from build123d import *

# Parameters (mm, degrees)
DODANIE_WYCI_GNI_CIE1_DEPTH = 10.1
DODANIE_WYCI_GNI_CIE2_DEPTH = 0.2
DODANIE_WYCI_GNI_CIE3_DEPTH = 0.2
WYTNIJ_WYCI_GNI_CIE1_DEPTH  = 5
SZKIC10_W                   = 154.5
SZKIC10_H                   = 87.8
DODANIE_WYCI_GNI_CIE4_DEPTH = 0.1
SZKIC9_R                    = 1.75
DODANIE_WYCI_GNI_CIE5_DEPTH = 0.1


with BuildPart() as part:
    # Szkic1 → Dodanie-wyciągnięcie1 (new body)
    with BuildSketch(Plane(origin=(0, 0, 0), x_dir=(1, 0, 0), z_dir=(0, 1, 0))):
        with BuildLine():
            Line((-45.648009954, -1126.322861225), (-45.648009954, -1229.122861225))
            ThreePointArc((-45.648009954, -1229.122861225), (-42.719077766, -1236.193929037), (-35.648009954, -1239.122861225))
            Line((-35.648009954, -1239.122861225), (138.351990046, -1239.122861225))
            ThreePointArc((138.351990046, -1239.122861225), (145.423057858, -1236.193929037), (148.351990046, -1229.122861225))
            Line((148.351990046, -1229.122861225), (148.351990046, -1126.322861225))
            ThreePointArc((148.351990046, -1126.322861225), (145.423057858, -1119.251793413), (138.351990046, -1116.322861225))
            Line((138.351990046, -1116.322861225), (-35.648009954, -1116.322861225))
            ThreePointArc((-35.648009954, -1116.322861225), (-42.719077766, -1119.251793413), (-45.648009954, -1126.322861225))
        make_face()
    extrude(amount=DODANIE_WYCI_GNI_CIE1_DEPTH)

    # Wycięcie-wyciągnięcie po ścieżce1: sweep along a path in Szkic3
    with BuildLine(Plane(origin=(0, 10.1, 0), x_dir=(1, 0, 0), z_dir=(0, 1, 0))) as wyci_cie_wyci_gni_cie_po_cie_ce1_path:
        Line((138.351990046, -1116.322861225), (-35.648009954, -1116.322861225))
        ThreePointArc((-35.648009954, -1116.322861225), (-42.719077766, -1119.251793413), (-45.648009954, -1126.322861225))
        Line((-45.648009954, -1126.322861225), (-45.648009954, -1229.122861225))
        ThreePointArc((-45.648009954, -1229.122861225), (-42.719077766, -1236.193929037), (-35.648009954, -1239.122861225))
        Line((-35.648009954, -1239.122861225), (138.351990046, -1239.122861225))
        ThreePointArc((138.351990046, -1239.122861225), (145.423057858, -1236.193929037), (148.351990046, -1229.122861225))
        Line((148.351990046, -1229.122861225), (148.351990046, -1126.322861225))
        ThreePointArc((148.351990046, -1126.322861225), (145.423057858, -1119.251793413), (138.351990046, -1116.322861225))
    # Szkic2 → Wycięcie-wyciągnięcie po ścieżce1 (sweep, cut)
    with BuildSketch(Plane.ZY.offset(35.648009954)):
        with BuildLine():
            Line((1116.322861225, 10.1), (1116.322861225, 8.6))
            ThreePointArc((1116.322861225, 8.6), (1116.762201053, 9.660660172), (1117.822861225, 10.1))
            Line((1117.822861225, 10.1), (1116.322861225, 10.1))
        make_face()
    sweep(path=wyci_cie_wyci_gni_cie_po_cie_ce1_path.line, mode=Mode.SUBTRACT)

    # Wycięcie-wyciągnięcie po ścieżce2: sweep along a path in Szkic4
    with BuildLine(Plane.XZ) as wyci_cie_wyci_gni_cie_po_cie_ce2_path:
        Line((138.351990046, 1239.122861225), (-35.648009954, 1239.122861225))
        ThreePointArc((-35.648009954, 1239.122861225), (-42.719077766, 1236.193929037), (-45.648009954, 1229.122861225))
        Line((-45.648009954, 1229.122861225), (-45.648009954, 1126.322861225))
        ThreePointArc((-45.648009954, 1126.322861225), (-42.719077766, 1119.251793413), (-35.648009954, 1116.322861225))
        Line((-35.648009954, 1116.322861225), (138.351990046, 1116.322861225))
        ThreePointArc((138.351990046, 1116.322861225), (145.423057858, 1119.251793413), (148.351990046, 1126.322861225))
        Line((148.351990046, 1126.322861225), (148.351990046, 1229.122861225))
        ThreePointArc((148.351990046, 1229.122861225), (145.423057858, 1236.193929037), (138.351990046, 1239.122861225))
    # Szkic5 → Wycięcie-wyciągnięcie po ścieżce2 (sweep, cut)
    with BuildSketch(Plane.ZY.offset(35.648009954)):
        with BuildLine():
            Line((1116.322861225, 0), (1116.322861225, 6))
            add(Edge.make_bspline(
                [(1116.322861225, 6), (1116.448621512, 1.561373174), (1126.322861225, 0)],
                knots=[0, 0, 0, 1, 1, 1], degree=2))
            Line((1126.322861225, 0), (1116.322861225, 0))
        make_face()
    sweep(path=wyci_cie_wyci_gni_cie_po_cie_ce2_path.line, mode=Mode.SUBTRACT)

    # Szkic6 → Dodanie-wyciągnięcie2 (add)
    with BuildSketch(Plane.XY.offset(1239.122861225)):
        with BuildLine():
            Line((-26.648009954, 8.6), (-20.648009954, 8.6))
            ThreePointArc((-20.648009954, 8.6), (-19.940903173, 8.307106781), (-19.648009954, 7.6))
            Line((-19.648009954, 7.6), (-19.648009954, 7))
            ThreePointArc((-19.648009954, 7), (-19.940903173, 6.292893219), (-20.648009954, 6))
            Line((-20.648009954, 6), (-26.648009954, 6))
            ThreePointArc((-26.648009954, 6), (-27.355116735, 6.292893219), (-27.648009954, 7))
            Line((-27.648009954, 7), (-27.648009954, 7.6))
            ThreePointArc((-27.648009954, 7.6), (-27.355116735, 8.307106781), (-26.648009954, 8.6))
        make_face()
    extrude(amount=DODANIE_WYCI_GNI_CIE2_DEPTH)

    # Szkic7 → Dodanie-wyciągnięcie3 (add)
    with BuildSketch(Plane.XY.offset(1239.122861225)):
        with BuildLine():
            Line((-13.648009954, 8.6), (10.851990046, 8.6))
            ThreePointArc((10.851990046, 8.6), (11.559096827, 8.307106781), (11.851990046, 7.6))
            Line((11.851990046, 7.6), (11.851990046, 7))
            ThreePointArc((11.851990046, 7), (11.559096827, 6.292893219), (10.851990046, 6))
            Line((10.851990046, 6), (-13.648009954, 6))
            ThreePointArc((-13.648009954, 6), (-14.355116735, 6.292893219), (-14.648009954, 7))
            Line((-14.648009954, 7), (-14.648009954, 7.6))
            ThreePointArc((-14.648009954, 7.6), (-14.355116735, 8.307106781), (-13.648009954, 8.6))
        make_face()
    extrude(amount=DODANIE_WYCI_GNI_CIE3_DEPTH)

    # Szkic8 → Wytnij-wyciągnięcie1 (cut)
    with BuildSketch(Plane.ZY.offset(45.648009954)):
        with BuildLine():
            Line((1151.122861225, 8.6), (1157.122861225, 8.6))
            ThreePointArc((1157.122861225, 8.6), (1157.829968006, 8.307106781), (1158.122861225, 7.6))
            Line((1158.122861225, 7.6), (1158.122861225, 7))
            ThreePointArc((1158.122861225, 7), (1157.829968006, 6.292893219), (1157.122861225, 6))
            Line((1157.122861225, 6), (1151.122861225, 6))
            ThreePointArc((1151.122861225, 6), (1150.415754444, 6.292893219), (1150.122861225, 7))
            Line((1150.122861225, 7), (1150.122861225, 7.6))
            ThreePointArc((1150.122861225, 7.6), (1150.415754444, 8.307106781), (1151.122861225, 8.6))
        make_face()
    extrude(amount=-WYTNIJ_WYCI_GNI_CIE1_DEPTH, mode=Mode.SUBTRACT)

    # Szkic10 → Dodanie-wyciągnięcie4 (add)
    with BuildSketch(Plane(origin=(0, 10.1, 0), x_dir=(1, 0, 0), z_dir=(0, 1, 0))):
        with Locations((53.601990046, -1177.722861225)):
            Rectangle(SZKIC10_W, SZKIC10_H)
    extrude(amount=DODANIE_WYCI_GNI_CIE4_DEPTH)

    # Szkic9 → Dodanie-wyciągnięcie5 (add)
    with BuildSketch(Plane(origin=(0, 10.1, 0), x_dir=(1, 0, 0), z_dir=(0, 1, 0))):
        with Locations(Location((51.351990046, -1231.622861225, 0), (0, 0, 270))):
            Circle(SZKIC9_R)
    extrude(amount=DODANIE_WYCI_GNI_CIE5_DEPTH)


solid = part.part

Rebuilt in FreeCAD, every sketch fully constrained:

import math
import FreeCAD as App
import Part
import Sketcher
Q = App.Units.Quantity


def add_polygon(sketch, points):
    """Adds a closed chain of lines whose ends are joined by coincident constraints."""
    first, n = sketch.GeometryCount, len(points)
    for a, b in zip(points, points[1:] + points[:1]):
        sketch.addGeometry(Part.LineSegment(App.Vector(*a, 0), App.Vector(*b, 0)), False)
    for i in range(n):
        sketch.addConstraint(Sketcher.Constraint("Coincident", first + i, 2, first + (i + 1) % n, 1))

doc = App.newDocument("Part")
body = doc.addObject("PartDesign::Body", "Body")

sketch1 = body.newObject("Sketcher::SketchObject", "Sketch")
sketch1.AttachmentSupport = (doc.getObject("XZ_Plane"), [""])
sketch1.MapMode = "FlatFace"
sketch1.addGeometry([
    Part.LineSegment(App.Vector(-45.64801, 1126.322861, 0), App.Vector(-45.64801, 1229.122861, 0)),
    Part.ArcOfCircle(Part.Circle(App.Vector(-35.64801, 1229.122861, 0), App.Vector(0, 0, 1), 10), math.radians(90), math.radians(180)),
    Part.LineSegment(App.Vector(-35.64801, 1239.122861, 0), App.Vector(138.35199, 1239.122861, 0)),
    Part.ArcOfCircle(Part.Circle(App.Vector(138.35199, 1229.122861, 0), App.Vector(0, 0, 1), 10), math.radians(0), math.radians(90)),
    Part.LineSegment(App.Vector(148.35199, 1229.122861, 0), App.Vector(148.35199, 1126.322861, 0)),
    Part.ArcOfCircle(Part.Circle(App.Vector(138.35199, 1126.322861, 0), App.Vector(0, 0, 1), 10), math.radians(-90), math.radians(0)),
    Part.LineSegment(App.Vector(138.35199, 1116.322861, 0), App.Vector(-35.64801, 1116.322861, 0)),
    Part.ArcOfCircle(Part.Circle(App.Vector(-35.64801, 1126.322861, 0), App.Vector(0, 0, 1), 10), math.radians(180), math.radians(270)),
], False)
sketch1.addConstraint([
    Sketcher.Constraint("Tangent", 0, 2, 1, 2),
    Sketcher.Constraint("Tangent", 1, 1, 2, 1),
    Sketcher.Constraint("Tangent", 2, 2, 3, 2),
    Sketcher.Constraint("Tangent", 3, 1, 4, 1),
    Sketcher.Constraint("Tangent", 4, 2, 5, 2),
    Sketcher.Constraint("Tangent", 5, 1, 6, 1),
    Sketcher.Constraint("Tangent", 6, 2, 7, 2),
    Sketcher.Constraint("Tangent", 7, 1, 0, 1),
    Sketcher.Constraint("Vertical", 0),
    Sketcher.Constraint("Horizontal", 2),
    Sketcher.Constraint("Vertical", 4),
    Sketcher.Constraint("Horizontal", 6),
    Sketcher.Constraint("Equal", 1, 3),
    Sketcher.Constraint("Equal", 3, 5),
    Sketcher.Constraint("Equal", 5, 7),
    Sketcher.Constraint("Radius", 1, Q("10 mm")),
    Sketcher.Constraint("DistanceX", 2, 1, 2, 2, Q("174 mm")),
    Sketcher.Constraint("DistanceY", 0, 1, 0, 2, Q("102.8 mm")),
    Sketcher.Constraint("DistanceX", 1, 3, -1, 1, Q("35.64801 mm")),
    Sketcher.Constraint("DistanceY", -1, 1, 1, 3, Q("1229.122861 mm")),
])
pad1 = body.newObject("PartDesign::Pad", "Pad")
pad1.Profile = sketch1
pad1.Length = 10.1
pad1.Reversed = True

sketch2 = body.newObject("Sketcher::SketchObject", "Sketch001")
sketch2.AttachmentSupport = (doc.getObject("YZ_Plane"), [""])
sketch2.MapMode = "FlatFace"
sketch2.AttachmentOffset = App.Placement(App.Vector(0, 0, -35.64801), App.Rotation())
sketch2.addGeometry([
    Part.LineSegment(App.Vector(10.1, 1116.322861, 0), App.Vector(8.6, 1116.322861, 0)),
    Part.ArcOfCircle(Part.Circle(App.Vector(8.6, 1117.822861, 0), App.Vector(0, 0, 1), 1.5), math.radians(-90), math.radians(0)),
    Part.LineSegment(App.Vector(10.1, 1117.822861, 0), App.Vector(10.1, 1116.322861, 0)),
], False)
sketch2.addConstraint([
    Sketcher.Constraint("Tangent", 0, 2, 1, 1),
    Sketcher.Constraint("Tangent", 1, 2, 2, 1),
    Sketcher.Constraint("Coincident", 2, 2, 0, 1),
    Sketcher.Constraint("Horizontal", 0),
    Sketcher.Constraint("Vertical", 2),
    Sketcher.Constraint("Radius", 1, Q("1.5 mm")),
    Sketcher.Constraint("DistanceX", -1, 1, 1, 3, Q("8.6 mm")),
    Sketcher.Constraint("DistanceY", -1, 1, 1, 3, Q("1117.822861 mm")),
])

sketch3 = body.newObject("Sketcher::SketchObject", "Sketch002")
sketch3.AttachmentSupport = (doc.getObject("XZ_Plane"), [""])
sketch3.MapMode = "FlatFace"
sketch3.AttachmentOffset = App.Placement(App.Vector(0, 0, -10.1), App.Rotation())
sketch3.addGeometry([
    Part.LineSegment(App.Vector(138.35199, 1116.322861, 0), App.Vector(-35.64801, 1116.322861, 0)),
    Part.ArcOfCircle(Part.Circle(App.Vector(-35.64801, 1126.322861, 0), App.Vector(0, 0, 1), 10), math.radians(180), math.radians(270)),
    Part.LineSegment(App.Vector(-45.64801, 1126.322861, 0), App.Vector(-45.64801, 1229.122861, 0)),
    Part.ArcOfCircle(Part.Circle(App.Vector(-35.64801, 1229.122861, 0), App.Vector(0, 0, 1), 10), math.radians(90), math.radians(180)),
    Part.LineSegment(App.Vector(-35.64801, 1239.122861, 0), App.Vector(138.35199, 1239.122861, 0)),
    Part.ArcOfCircle(Part.Circle(App.Vector(138.35199, 1229.122861, 0), App.Vector(0, 0, 1), 10), math.radians(0), math.radians(90)),
    Part.LineSegment(App.Vector(148.35199, 1229.122861, 0), App.Vector(148.35199, 1126.322861, 0)),
    Part.ArcOfCircle(Part.Circle(App.Vector(138.35199, 1126.322861, 0), App.Vector(0, 0, 1), 10), math.radians(-90), math.radians(0)),
], False)
sketch3.addConstraint([
    Sketcher.Constraint("Tangent", 0, 2, 1, 2),
    Sketcher.Constraint("Tangent", 1, 1, 2, 1),
    Sketcher.Constraint("Tangent", 2, 2, 3, 2),
    Sketcher.Constraint("Tangent", 3, 1, 4, 1),
    Sketcher.Constraint("Tangent", 4, 2, 5, 2),
    Sketcher.Constraint("Tangent", 5, 1, 6, 1),
    Sketcher.Constraint("Tangent", 6, 2, 7, 2),
    Sketcher.Constraint("Tangent", 7, 1, 0, 1),
    Sketcher.Constraint("Horizontal", 0),
    Sketcher.Constraint("Vertical", 2),
    Sketcher.Constraint("Horizontal", 4),
    Sketcher.Constraint("Vertical", 6),
    Sketcher.Constraint("Equal", 1, 3),
    Sketcher.Constraint("Equal", 3, 5),
    Sketcher.Constraint("Equal", 5, 7),
    Sketcher.Constraint("Radius", 1, Q("10 mm")),
    Sketcher.Constraint("DistanceX", 0, 2, 0, 1, Q("174 mm")),
    Sketcher.Constraint("DistanceY", 2, 1, 2, 2, Q("102.8 mm")),
    Sketcher.Constraint("DistanceX", 1, 3, -1, 1, Q("35.64801 mm")),
    Sketcher.Constraint("DistanceY", -1, 1, 1, 3, Q("1126.322861 mm")),
])
doc.recompute()

subtractivepipe = body.newObject("PartDesign::SubtractivePipe", "SubtractivePipe")
subtractivepipe.Profile = sketch2
subtractivepipe.Spine = (sketch3, ["Edge1", "Edge2", "Edge3", "Edge4", "Edge5", "Edge6", "Edge7", "Edge8"])

sketch4 = body.newObject("Sketcher::SketchObject", "Sketch003")
sketch4.AttachmentSupport = (doc.getObject("YZ_Plane"), [""])
sketch4.MapMode = "FlatFace"
sketch4.AttachmentOffset = App.Placement(App.Vector(0, 0, -35.64801), App.Rotation())
sketch4.addGeometry([
    Part.LineSegment(App.Vector(6, 1116.322861, 0), App.Vector(0, 1116.322861, 0)),
    Part.LineSegment(App.Vector(0, 1116.322861, 0), App.Vector(0, 1126.322861, 0)),
    Part.BSplineCurve([App.Vector(6, 1116.322861, 0), App.Vector(1.561373, 1116.448622, 0), App.Vector(0, 1126.322861, 0)], [3, 3], [0, 1], False, 2, [1, 1, 1], False),
], False)
sketch4.addConstraint([
    Sketcher.Constraint("Block", 2),
    Sketcher.Constraint("Coincident", 0, 2, 1, 1),
    Sketcher.Constraint("Coincident", 1, 2, 2, 2),
    Sketcher.Constraint("Coincident", 2, 1, 0, 1),
    Sketcher.Constraint("Horizontal", 0),
    Sketcher.Constraint("Vertical", 1),
])

sketch5 = body.newObject("Sketcher::SketchObject", "Sketch004")
sketch5.AttachmentSupport = (doc.getObject("XZ_Plane"), [""])
sketch5.MapMode = "FlatFace"
sketch5.addGeometry([
    Part.LineSegment(App.Vector(138.35199, 1239.122861, 0), App.Vector(-35.64801, 1239.122861, 0)),
    Part.ArcOfCircle(Part.Circle(App.Vector(-35.64801, 1229.122861, 0), App.Vector(0, 0, 1), 10), math.radians(90), math.radians(180)),
    Part.LineSegment(App.Vector(-45.64801, 1229.122861, 0), App.Vector(-45.64801, 1126.322861, 0)),
    Part.ArcOfCircle(Part.Circle(App.Vector(-35.64801, 1126.322861, 0), App.Vector(0, 0, 1), 10), math.radians(180), math.radians(270)),
    Part.LineSegment(App.Vector(-35.64801, 1116.322861, 0), App.Vector(138.35199, 1116.322861, 0)),
    Part.ArcOfCircle(Part.Circle(App.Vector(138.35199, 1126.322861, 0), App.Vector(0, 0, 1), 10), math.radians(-90), math.radians(0)),
    Part.LineSegment(App.Vector(148.35199, 1126.322861, 0), App.Vector(148.35199, 1229.122861, 0)),
    Part.ArcOfCircle(Part.Circle(App.Vector(138.35199, 1229.122861, 0), App.Vector(0, 0, 1), 10), math.radians(0), math.radians(90)),
], False)
sketch5.addConstraint([
    Sketcher.Constraint("Tangent", 0, 2, 1, 1),
    Sketcher.Constraint("Tangent", 1, 2, 2, 1),
    Sketcher.Constraint("Tangent", 2, 2, 3, 1),
    Sketcher.Constraint("Tangent", 3, 2, 4, 1),
    Sketcher.Constraint("Tangent", 4, 2, 5, 1),
    Sketcher.Constraint("Tangent", 5, 2, 6, 1),
    Sketcher.Constraint("Tangent", 6, 2, 7, 1),
    Sketcher.Constraint("Tangent", 7, 2, 0, 1),
    Sketcher.Constraint("Horizontal", 0),
    Sketcher.Constraint("Vertical", 2),
    Sketcher.Constraint("Horizontal", 4),
    Sketcher.Constraint("Vertical", 6),
    Sketcher.Constraint("Equal", 1, 3),
    Sketcher.Constraint("Equal", 3, 5),
    Sketcher.Constraint("Equal", 5, 7),
    Sketcher.Constraint("Radius", 1, Q("10 mm")),
    Sketcher.Constraint("DistanceX", 0, 2, 0, 1, Q("174 mm")),
    Sketcher.Constraint("DistanceY", 2, 2, 2, 1, Q("102.8 mm")),
    Sketcher.Constraint("DistanceX", 1, 3, -1, 1, Q("35.64801 mm")),
    Sketcher.Constraint("DistanceY", -1, 1, 1, 3, Q("1229.122861 mm")),
])
doc.recompute()

subtractivepipe2 = body.newObject("PartDesign::SubtractivePipe", "SubtractivePipe001")
subtractivepipe2.Profile = sketch4
subtractivepipe2.Spine = (sketch5, ["Edge1", "Edge2", "Edge3", "Edge4", "Edge5", "Edge6", "Edge7", "Edge8"])

sketch6 = body.newObject("Sketcher::SketchObject", "Sketch005")
sketch6.AttachmentSupport = (doc.getObject("XY_Plane"), [""])
sketch6.MapMode = "FlatFace"
sketch6.AttachmentOffset = App.Placement(App.Vector(0, 0, 1239.122861), App.Rotation())
sketch6.addGeometry([
    Part.LineSegment(App.Vector(-20.64801, 8.6, 0), App.Vector(-26.64801, 8.6, 0)),
    Part.ArcOfCircle(Part.Circle(App.Vector(-26.64801, 7.6, 0), App.Vector(0, 0, 1), 1), math.radians(90), math.radians(180)),
    Part.LineSegment(App.Vector(-27.64801, 7.6, 0), App.Vector(-27.64801, 7, 0)),
    Part.ArcOfCircle(Part.Circle(App.Vector(-26.64801, 7, 0), App.Vector(0, 0, 1), 1), math.radians(-180), math.radians(-90)),
    Part.LineSegment(App.Vector(-26.64801, 6, 0), App.Vector(-20.64801, 6, 0)),
    Part.ArcOfCircle(Part.Circle(App.Vector(-20.64801, 7, 0), App.Vector(0, 0, 1), 1), math.radians(-90), math.radians(0)),
    Part.LineSegment(App.Vector(-19.64801, 7, 0), App.Vector(-19.64801, 7.6, 0)),
    Part.ArcOfCircle(Part.Circle(App.Vector(-20.64801, 7.6, 0), App.Vector(0, 0, 1), 1), math.radians(0), math.radians(90)),
], False)
sketch6.addConstraint([
    Sketcher.Constraint("Tangent", 0, 2, 1, 1),
    Sketcher.Constraint("Tangent", 1, 2, 2, 1),
    Sketcher.Constraint("Tangent", 2, 2, 3, 1),
    Sketcher.Constraint("Tangent", 3, 2, 4, 1),
    Sketcher.Constraint("Tangent", 4, 2, 5, 1),
    Sketcher.Constraint("Tangent", 5, 2, 6, 1),
    Sketcher.Constraint("Tangent", 6, 2, 7, 1),
    Sketcher.Constraint("Tangent", 7, 2, 0, 1),
    Sketcher.Constraint("Horizontal", 0),
    Sketcher.Constraint("Vertical", 2),
    Sketcher.Constraint("Horizontal", 4),
    Sketcher.Constraint("Vertical", 6),
    Sketcher.Constraint("Equal", 1, 3),
    Sketcher.Constraint("Equal", 3, 5),
    Sketcher.Constraint("Equal", 5, 7),
    Sketcher.Constraint("Radius", 1, Q("1 mm")),
    Sketcher.Constraint("DistanceX", 0, 2, 0, 1, Q("6 mm")),
    Sketcher.Constraint("DistanceY", 2, 2, 2, 1, Q("0.6 mm")),
    Sketcher.Constraint("DistanceY", -1, 1, 3, 3, Q("7 mm")),
    Sketcher.Constraint("DistanceX", 1, 3, -1, 1, Q("26.64801 mm")),
])
pad2 = body.newObject("PartDesign::Pad", "Pad001")
pad2.Profile = sketch6
pad2.Length = 0.2

sketch7 = body.newObject("Sketcher::SketchObject", "Sketch006")
sketch7.AttachmentSupport = (doc.getObject("XY_Plane"), [""])
sketch7.MapMode = "FlatFace"
sketch7.AttachmentOffset = App.Placement(App.Vector(0, 0, 1239.122861), App.Rotation())
sketch7.addGeometry([
    Part.LineSegment(App.Vector(10.85199, 8.6, 0), App.Vector(-13.64801, 8.6, 0)),
    Part.ArcOfCircle(Part.Circle(App.Vector(-13.64801, 7.6, 0), App.Vector(0, 0, 1), 1), math.radians(90), math.radians(180)),
    Part.LineSegment(App.Vector(-14.64801, 7.6, 0), App.Vector(-14.64801, 7, 0)),
    Part.ArcOfCircle(Part.Circle(App.Vector(-13.64801, 7, 0), App.Vector(0, 0, 1), 1), math.radians(-180), math.radians(-90)),
    Part.LineSegment(App.Vector(-13.64801, 6, 0), App.Vector(10.85199, 6, 0)),
    Part.ArcOfCircle(Part.Circle(App.Vector(10.85199, 7, 0), App.Vector(0, 0, 1), 1), math.radians(-90), math.radians(0)),
    Part.LineSegment(App.Vector(11.85199, 7, 0), App.Vector(11.85199, 7.6, 0)),
    Part.ArcOfCircle(Part.Circle(App.Vector(10.85199, 7.6, 0), App.Vector(0, 0, 1), 1), math.radians(0), math.radians(90)),
], False)
sketch7.addConstraint([
    Sketcher.Constraint("Tangent", 0, 2, 1, 1),
    Sketcher.Constraint("Tangent", 1, 2, 2, 1),
    Sketcher.Constraint("Tangent", 2, 2, 3, 1),
    Sketcher.Constraint("Tangent", 3, 2, 4, 1),
    Sketcher.Constraint("Tangent", 4, 2, 5, 1),
    Sketcher.Constraint("Tangent", 5, 2, 6, 1),
    Sketcher.Constraint("Tangent", 6, 2, 7, 1),
    Sketcher.Constraint("Tangent", 7, 2, 0, 1),
    Sketcher.Constraint("Horizontal", 0),
    Sketcher.Constraint("Vertical", 2),
    Sketcher.Constraint("Horizontal", 4),
    Sketcher.Constraint("Vertical", 6),
    Sketcher.Constraint("Equal", 1, 3),
    Sketcher.Constraint("Equal", 3, 5),
    Sketcher.Constraint("Equal", 5, 7),
    Sketcher.Constraint("Radius", 1, Q("1 mm")),
    Sketcher.Constraint("DistanceX", 0, 2, 0, 1, Q("24.5 mm")),
    Sketcher.Constraint("DistanceY", 2, 2, 2, 1, Q("0.6 mm")),
    Sketcher.Constraint("DistanceY", -1, 1, 3, 3, Q("7 mm")),
    Sketcher.Constraint("DistanceX", 1, 3, -1, 1, Q("13.64801 mm")),
])
pad3 = body.newObject("PartDesign::Pad", "Pad002")
pad3.Profile = sketch7
pad3.Length = 0.2

sketch8 = body.newObject("Sketcher::SketchObject", "Sketch007")
sketch8.AttachmentSupport = (doc.getObject("YZ_Plane"), [""])
sketch8.MapMode = "FlatFace"
sketch8.AttachmentOffset = App.Placement(App.Vector(0, 0, -45.64801), App.Rotation())
sketch8.addGeometry([
    Part.LineSegment(App.Vector(8.6, 1157.122861, 0), App.Vector(8.6, 1151.122861, 0)),
    Part.ArcOfCircle(Part.Circle(App.Vector(7.6, 1151.122861, 0), App.Vector(0, 0, 1), 1), math.radians(-90), math.radians(0)),
    Part.LineSegment(App.Vector(7.6, 1150.122861, 0), App.Vector(7, 1150.122861, 0)),
    Part.ArcOfCircle(Part.Circle(App.Vector(7, 1151.122861, 0), App.Vector(0, 0, 1), 1), math.radians(-180), math.radians(-90)),
    Part.LineSegment(App.Vector(6, 1151.122861, 0), App.Vector(6, 1157.122861, 0)),
    Part.ArcOfCircle(Part.Circle(App.Vector(7, 1157.122861, 0), App.Vector(0, 0, 1), 1), math.radians(90), math.radians(180)),
    Part.LineSegment(App.Vector(7, 1158.122861, 0), App.Vector(7.6, 1158.122861, 0)),
    Part.ArcOfCircle(Part.Circle(App.Vector(7.6, 1157.122861, 0), App.Vector(0, 0, 1), 1), math.radians(0), math.radians(90)),
], False)
sketch8.addConstraint([
    Sketcher.Constraint("Tangent", 0, 2, 1, 2),
    Sketcher.Constraint("Tangent", 1, 1, 2, 1),
    Sketcher.Constraint("Tangent", 2, 2, 3, 2),
    Sketcher.Constraint("Tangent", 3, 1, 4, 1),
    Sketcher.Constraint("Tangent", 4, 2, 5, 2),
    Sketcher.Constraint("Tangent", 5, 1, 6, 1),
    Sketcher.Constraint("Tangent", 6, 2, 7, 2),
    Sketcher.Constraint("Tangent", 7, 1, 0, 1),
    Sketcher.Constraint("Vertical", 0),
    Sketcher.Constraint("Horizontal", 2),
    Sketcher.Constraint("Vertical", 4),
    Sketcher.Constraint("Horizontal", 6),
    Sketcher.Constraint("Equal", 1, 3),
    Sketcher.Constraint("Equal", 3, 5),
    Sketcher.Constraint("Equal", 5, 7),
    Sketcher.Constraint("Radius", 1, Q("1 mm")),
    Sketcher.Constraint("DistanceY", 0, 2, 0, 1, Q("6 mm")),
    Sketcher.Constraint("DistanceX", 2, 2, 2, 1, Q("0.6 mm")),
    Sketcher.Constraint("DistanceX", -1, 1, 3, 3, Q("7 mm")),
    Sketcher.Constraint("DistanceY", -1, 1, 1, 3, Q("1151.122861 mm")),
])
pocket1 = body.newObject("PartDesign::Pocket", "Pocket")
pocket1.Profile = sketch8
pocket1.Length = 5
pocket1.Reversed = True

sketch9 = body.newObject("Sketcher::SketchObject", "Sketch008")
sketch9.AttachmentSupport = (doc.getObject("XZ_Plane"), [""])
sketch9.MapMode = "FlatFace"
sketch9.AttachmentOffset = App.Placement(App.Vector(0, 0, -10.1), App.Rotation())
add_polygon(sketch9, [(-23.64801, 1133.822861), (-23.64801, 1221.622861), (130.85199, 1221.622861), (130.85199, 1133.822861)])
sketch9.addConstraint([
    Sketcher.Constraint("Vertical", 0),
    Sketcher.Constraint("Horizontal", 1),
    Sketcher.Constraint("Vertical", 2),
    Sketcher.Constraint("Horizontal", 3),
    Sketcher.Constraint("DistanceX", 1, 1, 1, 2, Q("154.5 mm")),
    Sketcher.Constraint("DistanceY", 0, 1, 0, 2, Q("87.8 mm")),
    Sketcher.Constraint("DistanceX", 0, 2, -1, 1, Q("23.64801 mm")),
    Sketcher.Constraint("DistanceY", -1, 1, 0, 2, Q("1221.622861 mm")),
])
pad4 = body.newObject("PartDesign::Pad", "Pad003")
pad4.Profile = sketch9
pad4.Length = 0.1
pad4.Reversed = True

sketch10 = body.newObject("Sketcher::SketchObject", "Sketch009")
sketch10.AttachmentSupport = (doc.getObject("XZ_Plane"), [""])
sketch10.MapMode = "FlatFace"
sketch10.AttachmentOffset = App.Placement(App.Vector(0, 0, -10.1), App.Rotation())
sketch10.addGeometry(Part.Circle(App.Vector(51.35199, 1231.622861, 0), App.Vector(0, 0, 1), 1.75), False)
sketch10.addConstraint([
    Sketcher.Constraint("Diameter", 0, Q("3.5 mm")),
    Sketcher.Constraint("DistanceX", -1, 1, 0, 3, Q("51.35199 mm")),
    Sketcher.Constraint("DistanceY", -1, 1, 0, 3, Q("1231.622861 mm")),
])
pad5 = body.newObject("PartDesign::Pad", "Pad004")
pad5.Profile = sketch10
pad5.Length = 0.1
pad5.Reversed = True

doc.recompute()
